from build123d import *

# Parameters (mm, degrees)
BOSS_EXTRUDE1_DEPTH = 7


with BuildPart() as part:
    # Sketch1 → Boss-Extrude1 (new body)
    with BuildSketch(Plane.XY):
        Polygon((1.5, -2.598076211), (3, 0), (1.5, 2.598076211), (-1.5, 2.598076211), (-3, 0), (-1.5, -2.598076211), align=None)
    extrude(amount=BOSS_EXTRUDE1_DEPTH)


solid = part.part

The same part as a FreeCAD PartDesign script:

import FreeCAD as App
import Part
import Sketcher
Q = App.Units.Quantity

doc = App.newDocument("Part")
body = doc.addObject("PartDesign::Body", "Body")

# Sketch on XY plane
sketch1 = doc.addObject("Sketcher::SketchObject", "Sketch")
body.addObject(sketch1)
sketch1.AttachmentSupport = (doc.XY_Plane, [""])
sketch1.MapMode = "FlatFace"
sketch1.addGeometry(Part.LineSegment(App.Vector(1.5, -2.6, 0), App.Vector(3, 0, 0)), False)
sketch1.addGeometry(Part.LineSegment(App.Vector(3, 0, 0), App.Vector(1.5, 2.6, 0)), False)
sketch1.addGeometry(Part.LineSegment(App.Vector(1.5, 2.6, 0), App.Vector(-1.5, 2.6, 0)), False)
sketch1.addGeometry(Part.LineSegment(App.Vector(-1.5, 2.6, 0), App.Vector(-3, 0, 0)), False)
sketch1.addGeometry(Part.LineSegment(App.Vector(-3, 0, 0), App.Vector(-1.5, -2.6, 0)), False)
sketch1.addGeometry(Part.LineSegment(App.Vector(-1.5, -2.6, 0), App.Vector(1.5, -2.6, 0)), False)
sketch1.addConstraint(Sketcher.Constraint("Coincident", 0, 2, 1, 1))
sketch1.addConstraint(Sketcher.Constraint("Coincident", 1, 2, 2, 1))
sketch1.addConstraint(Sketcher.Constraint("Coincident", 2, 2, 3, 1))
sketch1.addConstraint(Sketcher.Constraint("Coincident", 3, 2, 4, 1))
sketch1.addConstraint(Sketcher.Constraint("Coincident", 4, 2, 5, 1))
sketch1.addConstraint(Sketcher.Constraint("Coincident", 5, 2, 0, 1))
sketch1.addConstraint(Sketcher.Constraint("Horizontal", 2))
sketch1.addConstraint(Sketcher.Constraint("Horizontal", 5))
sketch1.addConstraint(Sketcher.Constraint("Symmetric", 0, 2, 3, 2, -1, 1))
sketch1.addConstraint(Sketcher.Constraint("Symmetric", 1, 2, 4, 2, -1, 1))
sketch1.addConstraint(Sketcher.Constraint("PointOnObject", 0, 2, -1))
sketch1.addConstraint(Sketcher.Constraint("Parallel", 0, 3))
sketch1.addConstraint(Sketcher.Constraint("Vertical", 2, 2, 4, 2))
sketch1.addConstraint(Sketcher.Constraint("DistanceX", 2, 2, 2, 1, 3.0))
sketch1.addConstraint(Sketcher.Constraint("Angle", 0, Q("60 deg")))
sketch1.addConstraint(Sketcher.Constraint("Distance", 0, 3.0))
pad1 = doc.addObject("PartDesign::Pad", "Pad")
body.addObject(pad1)
pad1.Profile = sketch1
pad1.Length = 7

doc.recompute()
